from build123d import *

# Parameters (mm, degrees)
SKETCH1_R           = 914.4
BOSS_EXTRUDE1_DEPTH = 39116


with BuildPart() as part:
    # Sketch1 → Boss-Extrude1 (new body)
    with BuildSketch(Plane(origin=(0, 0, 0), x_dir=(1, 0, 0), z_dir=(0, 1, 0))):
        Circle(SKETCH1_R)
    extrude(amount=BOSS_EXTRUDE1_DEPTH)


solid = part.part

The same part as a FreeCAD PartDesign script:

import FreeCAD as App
import Part
import Sketcher

V = App.Vector
Q = App.Units.Quantity

doc = App.newDocument("Part")
body = doc.addObject("PartDesign::Body", "Body")

# Sketch on XZ plane
sketch1 = body.newObject("Sketcher::SketchObject", "Sketch")
sketch1.AttachmentSupport = (doc.getObject("XZ_Plane"), [""])
sketch1.MapMode = "FlatFace"
sketch1.addGeometry(Part.Circle(V(0, 0, 0), V(0, 0, 1), 914), False)
sketch1.addConstraint([
    Sketcher.Constraint("Coincident", 0, 3, -1, 1),
    Sketcher.Constraint("Diameter", 0, Q("72 in")),
])
pad1 = body.newObject("PartDesign::Pad", "Pad")
pad1.Profile = sketch1
pad1.Length = Q("1540 in")
pad1.Reversed = True

doc.recompute()
